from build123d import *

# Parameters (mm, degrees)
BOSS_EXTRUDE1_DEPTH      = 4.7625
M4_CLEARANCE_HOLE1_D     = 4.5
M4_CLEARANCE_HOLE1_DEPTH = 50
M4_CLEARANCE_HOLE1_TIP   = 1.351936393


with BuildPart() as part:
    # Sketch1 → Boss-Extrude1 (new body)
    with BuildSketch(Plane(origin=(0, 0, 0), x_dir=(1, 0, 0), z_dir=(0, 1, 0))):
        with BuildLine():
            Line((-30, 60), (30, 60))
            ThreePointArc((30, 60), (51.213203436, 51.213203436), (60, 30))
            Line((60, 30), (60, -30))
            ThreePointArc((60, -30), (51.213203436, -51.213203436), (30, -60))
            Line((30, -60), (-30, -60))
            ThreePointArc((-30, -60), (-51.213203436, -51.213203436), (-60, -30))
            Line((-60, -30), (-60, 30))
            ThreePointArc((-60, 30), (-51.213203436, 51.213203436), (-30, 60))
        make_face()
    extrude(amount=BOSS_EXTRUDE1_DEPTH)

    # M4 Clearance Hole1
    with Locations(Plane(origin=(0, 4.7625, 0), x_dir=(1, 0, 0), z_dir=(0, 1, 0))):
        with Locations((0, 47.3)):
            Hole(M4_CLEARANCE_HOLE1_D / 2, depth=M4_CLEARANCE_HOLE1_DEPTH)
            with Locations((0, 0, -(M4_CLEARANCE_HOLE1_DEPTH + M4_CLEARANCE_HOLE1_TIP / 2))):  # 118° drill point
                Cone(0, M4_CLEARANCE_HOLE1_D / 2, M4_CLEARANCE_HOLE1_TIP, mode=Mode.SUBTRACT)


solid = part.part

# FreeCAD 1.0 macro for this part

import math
import FreeCAD as App
import Part
import Sketcher

doc = App.newDocument("Part")
params = doc.addObject("Spreadsheet::Sheet", "Params")
for row, (alias, value) in enumerate([
    ("sketch1_radius", "30 mm"),
    ("sketch1_width", "60 mm"),
    ("pad1_length", "4.7625 mm"),
    ("sketch2_diameter", "4.5 mm"),
    ("hole_diameter", "4.5 mm"),
    ("hole_depth", "50 mm"),
], start=1):
    params.set(f"A{row}", alias)
    params.set(f"B{row}", "=" + value)
    params.setAlias(f"B{row}", alias)

body = doc.addObject("PartDesign::Body", "Body")

# Sketch on XZ plane
sketch1 = body.newObject("Sketcher::SketchObject", "Sketch")
sketch1.AttachmentSupport = (doc.getObject("XZ_Plane"), [""])
sketch1.MapMode = "FlatFace"
sketch1.addGeometry(Part.LineSegment(App.Vector(30, -60, 0), App.Vector(-30, -60, 0)), False)
sketch1.addGeometry(Part.ArcOfCircle(Part.Circle(App.Vector(-30, -30, 0), App.Vector(0, 0, 1), 30), math.radians(180), math.radians(270)), False)
sketch1.addGeometry(Part.LineSegment(App.Vector(-60, -30, 0), App.Vector(-60, 30, 0)), False)
sketch1.addGeometry(Part.ArcOfCircle(Part.Circle(App.Vector(-30, 30, 0), App.Vector(0, 0, 1), 30), math.radians(90), math.radians(180)), False)
sketch1.addGeometry(Part.LineSegment(App.Vector(-30, 60, 0), App.Vector(30, 60, 0)), False)
sketch1.addGeometry(Part.ArcOfCircle(Part.Circle(App.Vector(30, 30, 0), App.Vector(0, 0, 1), 30), math.radians(0), math.radians(90)), False)
sketch1.addGeometry(Part.LineSegment(App.Vector(60, 30, 0), App.Vector(60, -30, 0)), False)
sketch1.addGeometry(Part.ArcOfCircle(Part.Circle(App.Vector(30, -30, 0), App.Vector(0, 0, 1), 30), math.radians(-90), math.radians(0)), False)
sketch1.addConstraint(Sketcher.Constraint("Tangent", 0, 2, 1, 2))
sketch1.addConstraint(Sketcher.Constraint("Tangent", 1, 1, 2, 1))
sketch1.addConstraint(Sketcher.Constraint("Tangent", 2, 2, 3, 2))
sketch1.addConstraint(Sketcher.Constraint("Tangent", 3, 1, 4, 1))
sketch1.addConstraint(Sketcher.Constraint("Tangent", 4, 2, 5, 2))
sketch1.addConstraint(Sketcher.Constraint("Tangent", 5, 1, 6, 1))
sketch1.addConstraint(Sketcher.Constraint("Tangent", 6, 2, 7, 2))
sketch1.addConstraint(Sketcher.Constraint("Tangent", 7, 1, 0, 1))
sketch1.addConstraint(Sketcher.Constraint("Horizontal", 0))
sketch1.addConstraint(Sketcher.Constraint("Vertical", 2))
sketch1.addConstraint(Sketcher.Constraint("Horizontal", 4))
sketch1.addConstraint(Sketcher.Constraint("Vertical", 6))
sketch1.addConstraint(Sketcher.Constraint("Equal", 1, 3))
sketch1.addConstraint(Sketcher.Constraint("Equal", 3, 5))
sketch1.addConstraint(Sketcher.Constraint("Equal", 5, 7))
sketch1.addConstraint(Sketcher.Constraint("Symmetric", 1, 3, 5, 3, -1, 1))
sketch1.addConstraint(Sketcher.Constraint("Equal", 4, 2))
sketch1.addConstraint(Sketcher.Constraint("Radius", 1, 30.0))
sketch1.addConstraint(Sketcher.Constraint("DistanceX", 0, 2, 0, 1, 60.0))
sketch1.setExpression("Constraints[17]", "Params.sketch1_radius")
sketch1.setExpression("Constraints[18]", "Params.sketch1_width")
pad1 = body.newObject("PartDesign::Pad", "Pad")
pad1.Profile = sketch1
pad1.setExpression("Length", "Params.pad1_length")
pad1.Reversed = True

# Sketch on XZ plane
sketch2 = body.newObject("Sketcher::SketchObject", "Sketch001")
sketch2.AttachmentSupport = (doc.getObject("XZ_Plane"), [""])
sketch2.MapMode = "FlatFace"
sketch2.AttachmentOffset = App.Placement(App.Vector(0, 0, -4.7625), App.Rotation())
sketch2.addGeometry(Part.Circle(App.Vector(0, -47.3, 0), App.Vector(0, 0, 1), 2.2), False)
sketch2.addConstraint(Sketcher.Constraint("PointOnObject", 0, 3, -2))
sketch2.addConstraint(Sketcher.Constraint("Diameter", 0, 4.5))
sketch2.addConstraint(Sketcher.Constraint("DistanceY", 0, 3, -1, 1, 47.3))
sketch2.setExpression("Constraints[1]", "Params.sketch2_diameter")
doc.recompute()
hole = body.newObject("PartDesign::Hole", "Hole")
hole.Profile = sketch2
hole.ThreadType = "None"
hole.setExpression("Diameter", "Params.hole_diameter")
hole.DepthType = "Dimension"
hole.setExpression("Depth", "Params.hole_depth")
hole.DrillPoint = "Angled"
hole.DrillPointAngle = 118
hole.Reversed = True

doc.recompute()
